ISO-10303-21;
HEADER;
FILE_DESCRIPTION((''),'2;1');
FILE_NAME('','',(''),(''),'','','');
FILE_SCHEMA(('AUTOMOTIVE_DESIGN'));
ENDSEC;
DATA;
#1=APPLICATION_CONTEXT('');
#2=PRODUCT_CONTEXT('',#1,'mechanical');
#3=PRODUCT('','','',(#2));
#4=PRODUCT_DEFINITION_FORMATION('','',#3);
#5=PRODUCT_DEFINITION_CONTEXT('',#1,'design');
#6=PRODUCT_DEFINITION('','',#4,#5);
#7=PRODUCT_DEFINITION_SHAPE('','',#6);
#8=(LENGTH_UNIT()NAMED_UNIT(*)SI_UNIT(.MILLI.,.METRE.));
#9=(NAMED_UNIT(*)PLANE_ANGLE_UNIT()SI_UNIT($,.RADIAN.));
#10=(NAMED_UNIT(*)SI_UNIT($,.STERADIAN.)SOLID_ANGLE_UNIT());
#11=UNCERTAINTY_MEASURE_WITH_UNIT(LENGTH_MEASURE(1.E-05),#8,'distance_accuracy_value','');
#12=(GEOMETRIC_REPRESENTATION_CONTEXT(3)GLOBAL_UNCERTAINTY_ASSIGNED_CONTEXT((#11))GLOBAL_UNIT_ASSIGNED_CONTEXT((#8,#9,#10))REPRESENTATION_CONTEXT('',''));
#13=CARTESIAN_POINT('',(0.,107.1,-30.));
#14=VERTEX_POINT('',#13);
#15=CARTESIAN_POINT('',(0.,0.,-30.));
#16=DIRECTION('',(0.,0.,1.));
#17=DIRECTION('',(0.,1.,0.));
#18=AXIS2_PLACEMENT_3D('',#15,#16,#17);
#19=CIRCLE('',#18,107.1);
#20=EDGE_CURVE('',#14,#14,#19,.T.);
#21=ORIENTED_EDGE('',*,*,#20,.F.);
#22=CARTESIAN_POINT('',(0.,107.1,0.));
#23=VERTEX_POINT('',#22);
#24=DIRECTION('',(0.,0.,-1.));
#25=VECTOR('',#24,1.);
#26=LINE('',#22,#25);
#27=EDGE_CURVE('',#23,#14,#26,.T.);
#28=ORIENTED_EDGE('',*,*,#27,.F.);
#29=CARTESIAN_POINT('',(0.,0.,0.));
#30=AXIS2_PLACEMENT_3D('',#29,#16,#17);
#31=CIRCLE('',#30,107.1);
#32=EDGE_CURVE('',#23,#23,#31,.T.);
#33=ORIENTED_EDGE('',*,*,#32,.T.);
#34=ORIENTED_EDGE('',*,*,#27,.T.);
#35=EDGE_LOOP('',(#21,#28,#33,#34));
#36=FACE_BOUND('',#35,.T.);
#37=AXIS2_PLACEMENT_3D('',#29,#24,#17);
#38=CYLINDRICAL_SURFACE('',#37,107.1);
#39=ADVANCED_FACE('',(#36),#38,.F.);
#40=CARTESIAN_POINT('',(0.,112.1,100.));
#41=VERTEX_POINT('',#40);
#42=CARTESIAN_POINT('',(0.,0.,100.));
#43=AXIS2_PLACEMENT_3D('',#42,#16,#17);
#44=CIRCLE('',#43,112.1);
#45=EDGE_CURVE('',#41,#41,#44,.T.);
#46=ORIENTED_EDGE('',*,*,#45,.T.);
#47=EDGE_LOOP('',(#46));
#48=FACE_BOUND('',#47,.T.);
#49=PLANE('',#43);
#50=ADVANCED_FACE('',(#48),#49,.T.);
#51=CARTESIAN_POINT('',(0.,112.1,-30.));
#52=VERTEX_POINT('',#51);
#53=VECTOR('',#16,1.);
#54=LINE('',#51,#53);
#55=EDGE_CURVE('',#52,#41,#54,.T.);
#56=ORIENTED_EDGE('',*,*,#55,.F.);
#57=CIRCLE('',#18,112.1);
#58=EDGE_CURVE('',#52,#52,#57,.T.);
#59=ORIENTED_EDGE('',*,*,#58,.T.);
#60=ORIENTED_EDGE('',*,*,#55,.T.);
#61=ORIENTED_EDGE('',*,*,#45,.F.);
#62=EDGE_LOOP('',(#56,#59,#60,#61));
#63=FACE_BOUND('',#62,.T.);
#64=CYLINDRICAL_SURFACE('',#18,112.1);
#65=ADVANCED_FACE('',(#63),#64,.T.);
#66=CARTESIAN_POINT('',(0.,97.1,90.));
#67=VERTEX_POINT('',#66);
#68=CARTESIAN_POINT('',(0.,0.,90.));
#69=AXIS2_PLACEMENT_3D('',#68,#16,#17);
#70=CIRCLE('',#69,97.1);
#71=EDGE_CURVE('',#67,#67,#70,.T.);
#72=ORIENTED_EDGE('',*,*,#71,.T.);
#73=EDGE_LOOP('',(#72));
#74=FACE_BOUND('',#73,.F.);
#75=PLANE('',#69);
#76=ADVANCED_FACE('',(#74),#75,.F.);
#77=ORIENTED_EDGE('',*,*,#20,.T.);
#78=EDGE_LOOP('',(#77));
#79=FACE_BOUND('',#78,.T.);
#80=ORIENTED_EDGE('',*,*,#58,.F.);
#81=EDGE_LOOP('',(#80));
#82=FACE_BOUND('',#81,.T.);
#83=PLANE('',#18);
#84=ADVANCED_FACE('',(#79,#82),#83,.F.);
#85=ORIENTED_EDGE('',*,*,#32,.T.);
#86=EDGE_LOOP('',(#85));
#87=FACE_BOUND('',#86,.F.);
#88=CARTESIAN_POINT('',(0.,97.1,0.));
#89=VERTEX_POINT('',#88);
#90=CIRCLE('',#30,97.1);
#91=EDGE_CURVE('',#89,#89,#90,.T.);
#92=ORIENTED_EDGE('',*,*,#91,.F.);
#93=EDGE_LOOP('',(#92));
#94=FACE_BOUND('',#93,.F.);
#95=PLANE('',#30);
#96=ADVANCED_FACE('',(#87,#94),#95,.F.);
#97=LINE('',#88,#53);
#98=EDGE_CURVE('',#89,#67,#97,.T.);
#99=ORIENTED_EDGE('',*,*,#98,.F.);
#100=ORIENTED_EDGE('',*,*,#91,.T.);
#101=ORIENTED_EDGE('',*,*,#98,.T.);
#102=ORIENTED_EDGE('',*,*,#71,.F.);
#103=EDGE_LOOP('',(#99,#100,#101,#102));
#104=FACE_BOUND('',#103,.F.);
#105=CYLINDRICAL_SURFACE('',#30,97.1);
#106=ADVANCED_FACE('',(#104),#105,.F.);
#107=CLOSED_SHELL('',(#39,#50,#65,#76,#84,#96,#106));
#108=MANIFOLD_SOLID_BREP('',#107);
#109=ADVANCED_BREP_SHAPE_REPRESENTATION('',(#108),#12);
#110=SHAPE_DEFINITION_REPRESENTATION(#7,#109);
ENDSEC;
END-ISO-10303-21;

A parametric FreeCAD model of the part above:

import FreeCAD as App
import Part
import Sketcher

doc = App.newDocument("Part")
body = doc.addObject("PartDesign::Body", "Body")

# Sketch on YZ plane
sketch1 = body.newObject("Sketcher::SketchObject", "Sketch")
sketch1.AttachmentSupport = (doc.getObject("YZ_Plane"), [""])
sketch1.MapMode = "FlatFace"
sketch1.addGeometry(Part.LineSegment(App.Vector(97, 0, 0), App.Vector(107, 0, 0)), False)
sketch1.addGeometry(Part.LineSegment(App.Vector(107, 0, 0), App.Vector(107, -30, 0)), False)
sketch1.addGeometry(Part.LineSegment(App.Vector(107, -30, 0), App.Vector(112, -30, 0)), False)
sketch1.addGeometry(Part.LineSegment(App.Vector(112, -30, 0), App.Vector(112, 100, 0)), False)
sketch1.addGeometry(Part.LineSegment(App.Vector(112, 100, 0), App.Vector(0, 100, 0)), False)
sketch1.addGeometry(Part.LineSegment(App.Vector(0, 100, 0), App.Vector(0, 90, 0)), False)
sketch1.addGeometry(Part.LineSegment(App.Vector(0, 90, 0), App.Vector(97, 90, 0)), False)
sketch1.addGeometry(Part.LineSegment(App.Vector(97, 90, 0), App.Vector(97, 0, 0)), False)
sketch1.addConstraint(Sketcher.Constraint("Coincident", 0, 2, 1, 1))
sketch1.addConstraint(Sketcher.Constraint("Coincident", 1, 2, 2, 1))
sketch1.addConstraint(Sketcher.Constraint("Coincident", 2, 2, 3, 1))
sketch1.addConstraint(Sketcher.Constraint("Coincident", 3, 2, 4, 1))
sketch1.addConstraint(Sketcher.Constraint("Coincident", 4, 2, 5, 1))
sketch1.addConstraint(Sketcher.Constraint("Coincident", 5, 2, 6, 1))
sketch1.addConstraint(Sketcher.Constraint("Coincident", 6, 2, 7, 1))
sketch1.addConstraint(Sketcher.Constraint("Coincident", 7, 2, 0, 1))
sketch1.addConstraint(Sketcher.Constraint("Horizontal", 0))
sketch1.addConstraint(Sketcher.Constraint("Vertical", 1))
sketch1.addConstraint(Sketcher.Constraint("Horizontal", 2))
sketch1.addConstraint(Sketcher.Constraint("Vertical", 3))
sketch1.addConstraint(Sketcher.Constraint("Horizontal", 4))
sketch1.addConstraint(Sketcher.Constraint("Vertical", 5))
sketch1.addConstraint(Sketcher.Constraint("Horizontal", 6))
sketch1.addConstraint(Sketcher.Constraint("Vertical", 7))
sketch1.addConstraint(Sketcher.Constraint("PointOnObject", 0, 2, -1))
sketch1.addConstraint(Sketcher.Constraint("PointOnObject", 4, 2, -2))
sketch1.addConstraint(Sketcher.Constraint("Equal", 0, 5))
sketch1.addConstraint(Sketcher.Constraint("DistanceX", 0, 1, 0, 2, 10.0))
sketch1.addConstraint(Sketcher.Constraint("DistanceX", 2, 1, 2, 2, 5.0))
sketch1.addConstraint(Sketcher.Constraint("DistanceY", 1, 2, 1, 1, 30.0))
sketch1.addConstraint(Sketcher.Constraint("DistanceY", -1, 1, 3, 2, 100.0))
sketch1.addConstraint(Sketcher.Constraint("DistanceX", 4, 2, 4, 1, 112.1))
revolution = body.newObject("PartDesign::Revolution", "Revolution")
revolution.Profile = sketch1
revolution.ReferenceAxis = (sketch1, ["V_Axis"])
revolution.Angle = 360

doc.recompute()
